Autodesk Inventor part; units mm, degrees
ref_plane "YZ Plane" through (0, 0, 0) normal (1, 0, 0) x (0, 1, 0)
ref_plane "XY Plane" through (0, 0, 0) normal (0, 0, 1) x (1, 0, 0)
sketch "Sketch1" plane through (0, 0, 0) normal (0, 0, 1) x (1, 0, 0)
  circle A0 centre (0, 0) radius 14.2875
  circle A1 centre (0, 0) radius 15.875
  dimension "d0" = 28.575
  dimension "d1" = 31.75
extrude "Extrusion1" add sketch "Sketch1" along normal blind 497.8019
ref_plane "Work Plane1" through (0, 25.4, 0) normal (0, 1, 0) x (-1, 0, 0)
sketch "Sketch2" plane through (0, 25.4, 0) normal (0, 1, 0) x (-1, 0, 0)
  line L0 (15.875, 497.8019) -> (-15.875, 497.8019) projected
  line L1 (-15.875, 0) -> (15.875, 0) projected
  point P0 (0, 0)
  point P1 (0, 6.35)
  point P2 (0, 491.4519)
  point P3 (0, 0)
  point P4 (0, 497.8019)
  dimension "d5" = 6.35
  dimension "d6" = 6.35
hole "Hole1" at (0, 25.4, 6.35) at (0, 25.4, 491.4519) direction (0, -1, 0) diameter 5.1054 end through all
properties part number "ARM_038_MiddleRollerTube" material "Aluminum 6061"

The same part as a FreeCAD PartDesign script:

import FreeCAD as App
import Part
import Sketcher

V = App.Vector
Q = App.Units.Quantity

doc = App.newDocument("Part")
body = doc.addObject("PartDesign::Body", "Body")

# Sketch on XY plane
sketch1 = body.newObject("Sketcher::SketchObject", "Sketch")
sketch1.AttachmentSupport = (doc.getObject("XY_Plane"), [""])
sketch1.MapMode = "FlatFace"
sketch1.addGeometry([
    Part.Circle(V(0, 0, 0), V(0, 0, 1), 15.875),
    Part.Circle(V(0, 0, 0), V(0, 0, 1), 14.2875),
], False)
sketch1.addConstraint([
    Sketcher.Constraint("Coincident", 0, 3, -1, 1),
    Sketcher.Constraint("Coincident", 1, 3, -1, 1),
    Sketcher.Constraint("Diameter", 0, Q("1.25 in")),
    Sketcher.Constraint("Diameter", 1, Q("1.125 in")),
])
pad1 = body.newObject("PartDesign::Pad", "Pad")
pad1.Profile = sketch1
pad1.Length = Q("19.5985 in")

# Sketch on XZ plane
sketch2 = body.newObject("Sketcher::SketchObject", "Sketch001")
sketch2.AttachmentSupport = (doc.getObject("XZ_Plane"), [""])
sketch2.MapMode = "FlatFace"
sketch2.AttachmentOffset = App.Placement(V(0, 0, -1 * 25.4), App.Rotation())
sketch2.addGeometry([
    Part.Circle(V(0, 6.35, 0), V(0, 0, 1), 2.5527),
    Part.Circle(V(0, 491.4519, 0), V(0, 0, 1), 2.5527),
], False)
sketch2.addConstraint([
    Sketcher.Constraint("Equal", 0, 1),
    Sketcher.Constraint("PointOnObject", 0, 3, -2),
    Sketcher.Constraint("PointOnObject", 1, 3, -2),
    Sketcher.Constraint("Diameter", 0, Q("0.201 in")),
    Sketcher.Constraint("DistanceY", -1, 1, 0, 3, Q("0.25 in")),
    Sketcher.Constraint("DistanceY", -1, 1, 1, 3, Q("19.3485 in")),
])
doc.recompute()
hole = body.newObject("PartDesign::Hole", "Hole")
hole.Profile = sketch2
hole.ThreadType = "None"
hole.Diameter = Q("0.201 in")
hole.DepthType = "ThroughAll"
hole.Reversed = True

doc.recompute()
